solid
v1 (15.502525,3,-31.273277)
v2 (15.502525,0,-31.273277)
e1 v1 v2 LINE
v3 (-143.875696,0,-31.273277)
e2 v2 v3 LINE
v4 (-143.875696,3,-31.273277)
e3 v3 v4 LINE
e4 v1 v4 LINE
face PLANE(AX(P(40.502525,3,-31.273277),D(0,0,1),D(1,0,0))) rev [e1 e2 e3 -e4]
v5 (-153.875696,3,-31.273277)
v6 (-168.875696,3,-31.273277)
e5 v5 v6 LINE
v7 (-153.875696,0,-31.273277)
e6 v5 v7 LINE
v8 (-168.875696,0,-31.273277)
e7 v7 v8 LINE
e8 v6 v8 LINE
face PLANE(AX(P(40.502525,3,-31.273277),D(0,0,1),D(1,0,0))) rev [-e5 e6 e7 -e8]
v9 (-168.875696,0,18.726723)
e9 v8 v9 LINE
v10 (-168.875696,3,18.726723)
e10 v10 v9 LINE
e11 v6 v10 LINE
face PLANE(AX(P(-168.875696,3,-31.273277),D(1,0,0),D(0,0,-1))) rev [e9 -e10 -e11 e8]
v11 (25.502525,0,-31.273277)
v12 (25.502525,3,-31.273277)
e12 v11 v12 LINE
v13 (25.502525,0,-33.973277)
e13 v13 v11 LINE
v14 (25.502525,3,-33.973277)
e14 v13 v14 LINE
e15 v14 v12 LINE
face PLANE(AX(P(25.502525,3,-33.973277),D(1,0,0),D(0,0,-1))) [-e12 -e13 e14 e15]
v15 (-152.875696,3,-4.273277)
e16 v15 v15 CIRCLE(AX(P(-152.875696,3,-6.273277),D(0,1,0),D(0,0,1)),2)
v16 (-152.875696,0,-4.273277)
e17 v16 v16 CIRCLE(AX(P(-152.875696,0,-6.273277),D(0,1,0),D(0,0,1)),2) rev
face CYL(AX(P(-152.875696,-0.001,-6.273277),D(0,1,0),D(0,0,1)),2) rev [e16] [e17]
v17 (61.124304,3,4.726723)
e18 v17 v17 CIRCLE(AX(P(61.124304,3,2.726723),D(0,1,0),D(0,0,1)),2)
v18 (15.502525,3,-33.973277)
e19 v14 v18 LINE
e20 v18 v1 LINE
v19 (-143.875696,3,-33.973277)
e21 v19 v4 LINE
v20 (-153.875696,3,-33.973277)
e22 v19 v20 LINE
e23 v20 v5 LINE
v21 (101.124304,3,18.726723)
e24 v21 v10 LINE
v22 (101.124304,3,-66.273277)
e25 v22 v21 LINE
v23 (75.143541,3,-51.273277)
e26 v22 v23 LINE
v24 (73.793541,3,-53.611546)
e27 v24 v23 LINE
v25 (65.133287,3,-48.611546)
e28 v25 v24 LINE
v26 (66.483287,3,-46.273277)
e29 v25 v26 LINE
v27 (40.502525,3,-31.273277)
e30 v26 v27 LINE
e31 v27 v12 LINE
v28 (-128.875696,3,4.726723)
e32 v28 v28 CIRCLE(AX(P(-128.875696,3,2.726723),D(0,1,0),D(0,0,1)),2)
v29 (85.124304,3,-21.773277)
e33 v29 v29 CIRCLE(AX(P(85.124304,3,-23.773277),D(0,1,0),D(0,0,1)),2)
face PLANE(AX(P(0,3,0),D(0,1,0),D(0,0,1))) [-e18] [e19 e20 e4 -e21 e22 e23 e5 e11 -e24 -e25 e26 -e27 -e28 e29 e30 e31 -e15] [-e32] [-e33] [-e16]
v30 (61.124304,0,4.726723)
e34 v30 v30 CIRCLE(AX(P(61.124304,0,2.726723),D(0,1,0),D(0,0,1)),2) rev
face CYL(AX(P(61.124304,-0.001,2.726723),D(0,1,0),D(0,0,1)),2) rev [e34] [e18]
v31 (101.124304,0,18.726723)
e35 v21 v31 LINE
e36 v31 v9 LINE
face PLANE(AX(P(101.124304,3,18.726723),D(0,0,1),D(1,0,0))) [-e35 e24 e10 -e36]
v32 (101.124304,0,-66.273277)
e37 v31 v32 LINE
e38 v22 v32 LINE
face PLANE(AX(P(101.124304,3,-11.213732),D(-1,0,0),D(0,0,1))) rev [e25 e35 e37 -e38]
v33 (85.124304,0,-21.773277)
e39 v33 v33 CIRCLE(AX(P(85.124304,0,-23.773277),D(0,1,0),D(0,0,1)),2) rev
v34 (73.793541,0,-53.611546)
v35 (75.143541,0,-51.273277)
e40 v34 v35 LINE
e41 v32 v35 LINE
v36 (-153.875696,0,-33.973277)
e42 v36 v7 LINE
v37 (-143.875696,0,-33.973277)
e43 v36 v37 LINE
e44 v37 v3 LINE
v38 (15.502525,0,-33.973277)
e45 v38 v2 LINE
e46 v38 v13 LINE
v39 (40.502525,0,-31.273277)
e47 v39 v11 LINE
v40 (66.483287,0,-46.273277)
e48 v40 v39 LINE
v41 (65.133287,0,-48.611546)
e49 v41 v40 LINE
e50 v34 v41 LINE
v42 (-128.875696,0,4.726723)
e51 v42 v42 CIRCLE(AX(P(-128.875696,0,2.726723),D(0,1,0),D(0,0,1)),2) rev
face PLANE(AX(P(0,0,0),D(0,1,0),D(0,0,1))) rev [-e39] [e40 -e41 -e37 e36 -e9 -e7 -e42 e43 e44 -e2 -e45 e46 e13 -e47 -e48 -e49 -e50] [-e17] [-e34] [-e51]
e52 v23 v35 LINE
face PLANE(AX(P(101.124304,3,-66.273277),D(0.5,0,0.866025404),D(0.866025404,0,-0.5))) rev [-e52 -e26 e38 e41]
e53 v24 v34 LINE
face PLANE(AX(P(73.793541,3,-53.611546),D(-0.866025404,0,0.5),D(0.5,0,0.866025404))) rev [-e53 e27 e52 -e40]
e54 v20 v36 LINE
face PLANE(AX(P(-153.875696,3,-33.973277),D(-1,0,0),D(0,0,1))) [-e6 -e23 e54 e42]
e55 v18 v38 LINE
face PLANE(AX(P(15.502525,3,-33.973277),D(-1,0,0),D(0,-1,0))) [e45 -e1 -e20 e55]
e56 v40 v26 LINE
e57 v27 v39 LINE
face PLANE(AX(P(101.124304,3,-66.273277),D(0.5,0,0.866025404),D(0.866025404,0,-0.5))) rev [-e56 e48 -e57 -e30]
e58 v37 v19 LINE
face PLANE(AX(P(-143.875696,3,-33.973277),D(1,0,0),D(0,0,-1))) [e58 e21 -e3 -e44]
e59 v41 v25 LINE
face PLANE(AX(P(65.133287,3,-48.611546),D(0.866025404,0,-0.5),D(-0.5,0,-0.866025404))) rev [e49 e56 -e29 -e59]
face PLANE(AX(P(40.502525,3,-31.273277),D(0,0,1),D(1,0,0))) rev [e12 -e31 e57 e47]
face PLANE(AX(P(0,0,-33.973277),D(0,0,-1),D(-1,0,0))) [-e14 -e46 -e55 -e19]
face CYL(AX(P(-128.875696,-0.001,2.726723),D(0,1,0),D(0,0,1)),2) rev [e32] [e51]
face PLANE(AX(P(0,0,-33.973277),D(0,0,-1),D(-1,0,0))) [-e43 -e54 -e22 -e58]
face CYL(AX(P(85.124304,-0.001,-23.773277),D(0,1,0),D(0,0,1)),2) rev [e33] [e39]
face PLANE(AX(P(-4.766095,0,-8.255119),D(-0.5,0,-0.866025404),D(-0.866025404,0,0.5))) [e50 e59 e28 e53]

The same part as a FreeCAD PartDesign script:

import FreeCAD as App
import Part
import Sketcher
from FreeCAD import Vector
Q = App.Units.Quantity

doc = App.newDocument("Part")
params = doc.addObject("Spreadsheet::Sheet", "Params")
for row, (alias, value) in enumerate([
    ("sketch1_width", "270 mm"),
    ("sketch1_height", "50 mm"),
    ("sketch1_height2", "85 mm"),
    ("pad1_length", "3 mm"),
    ("sketch2_diameter", "4 mm"),
    ("sketch3_diameter", "4 mm"),
    ("sketch4_diameter", "4 mm"),
    ("sketch5_diameter", "4 mm"),
    ("sketch6_width", "10 mm"),
    ("sketch6_height", "3 mm"),
    ("pad2_length", "2.7 mm"),
    ("sketch7_width", "10 mm"),
    ("sketch7_height", "3 mm"),
    ("pad3_length", "2.7 mm"),
], start=1):
    params.set(f"A{row}", alias)
    params.set(f"B{row}", "=" + value)
    params.setAlias(f"B{row}", alias)

body = doc.addObject("PartDesign::Body", "Body")

# Sketch on XZ plane
sketch1 = doc.addObject("Sketcher::SketchObject", "Sketch")
body.addObject(sketch1)
sketch1.AttachmentSupport = (doc.XZ_Plane, [""])
sketch1.MapMode = "FlatFace"
sketch1.addGeometry([
    Part.LineSegment(Vector(101, -66, 0), Vector(41, -31, 0)),  # 0
    Part.LineSegment(Vector(41, -31, 0), Vector(-169, -31, 0)),  # 1
    Part.LineSegment(Vector(-169, -31, 0), Vector(-169, 19, 0)),  # 2
    Part.LineSegment(Vector(-169, 19, 0), Vector(101, 19, 0)),  # 3
    Part.LineSegment(Vector(101, 19, 0), Vector(101, -66, 0)),  # 4
], False)
sketch1.addConstraint([
    Sketcher.Constraint("Coincident", 0, 2, 1, 1),
    Sketcher.Constraint("Coincident", 1, 2, 2, 1),
    Sketcher.Constraint("Coincident", 2, 2, 3, 1),
    Sketcher.Constraint("Coincident", 3, 2, 4, 1),
    Sketcher.Constraint("Coincident", 4, 2, 0, 1),
    Sketcher.Constraint("Horizontal", 1),
    Sketcher.Constraint("Vertical", 2),
    Sketcher.Constraint("Horizontal", 3),
    Sketcher.Constraint("Vertical", 4),
    Sketcher.Constraint("DistanceX", 3, 1, 3, 2, Q("270 mm")),
    Sketcher.Constraint("DistanceY", 2, 1, 2, 2, Q("50 mm")),
    Sketcher.Constraint("DistanceY", 4, 2, 4, 1, Q("85 mm")),
    Sketcher.Constraint("Angle", 0, Q("150 deg")),
    Sketcher.Constraint("DistanceX", -1, 1, 0, 2, Q("40.502525 mm")),
    Sketcher.Constraint("DistanceY", 0, 2, -1, 1, Q("31.273277 mm")),
])
sketch1.setExpression("Constraints[9]", "Params.sketch1_width")
sketch1.setExpression("Constraints[10]", "Params.sketch1_height")
sketch1.setExpression("Constraints[11]", "Params.sketch1_height2")
pad1 = doc.addObject("PartDesign::Pad", "Pad")
body.addObject(pad1)
pad1.Profile = sketch1
pad1.setExpression("Length", "Params.pad1_length")
pad1.Reversed = True

# Sketch on XZ plane
sketch2 = doc.addObject("Sketcher::SketchObject", "Sketch001")
body.addObject(sketch2)
sketch2.AttachmentSupport = (doc.XZ_Plane, [""])
sketch2.MapMode = "FlatFace"
sketch2.AttachmentOffset = App.Placement(Vector(0, 0, -3), App.Rotation())
sketch2.addGeometry(Part.Circle(Vector(-152.9, -6.3, 0), Vector(0, 0, 1), 2), False)
sketch2.addConstraint([
    Sketcher.Constraint("Diameter", 0, Q("4 mm")),
    Sketcher.Constraint("DistanceX", 0, 3, -1, 1, Q("152.875696 mm")),
    Sketcher.Constraint("DistanceY", 0, 3, -1, 1, Q("6.273277 mm")),
])
sketch2.setExpression("Constraints[0]", "Params.sketch2_diameter")
pocket1 = doc.addObject("PartDesign::Pocket", "Pocket")
body.addObject(pocket1)
pocket1.Profile = sketch2
pocket1.Type = "UpToFirst"
pocket1.Reversed = True

# Sketch on XZ plane
sketch3 = doc.addObject("Sketcher::SketchObject", "Sketch002")
body.addObject(sketch3)
sketch3.AttachmentSupport = (doc.XZ_Plane, [""])
sketch3.MapMode = "FlatFace"
sketch3.AttachmentOffset = App.Placement(Vector(0, 0, -3), App.Rotation())
sketch3.addGeometry(Part.Circle(Vector(85.1, -23.8, 0), Vector(0, 0, 1), 2), False)
sketch3.addConstraint([
    Sketcher.Constraint("Diameter", 0, Q("4 mm")),
    Sketcher.Constraint("DistanceX", -1, 1, 0, 3, Q("85.124304 mm")),
    Sketcher.Constraint("DistanceY", 0, 3, -1, 1, Q("23.773277 mm")),
])
sketch3.setExpression("Constraints[0]", "Params.sketch3_diameter")
pocket2 = doc.addObject("PartDesign::Pocket", "Pocket001")
body.addObject(pocket2)
pocket2.Profile = sketch3
pocket2.Type = "UpToFirst"
pocket2.Reversed = True

# Sketch on XZ plane
sketch4 = doc.addObject("Sketcher::SketchObject", "Sketch003")
body.addObject(sketch4)
sketch4.AttachmentSupport = (doc.XZ_Plane, [""])
sketch4.MapMode = "FlatFace"
sketch4.AttachmentOffset = App.Placement(Vector(0, 0, -3), App.Rotation())
sketch4.addGeometry(Part.Circle(Vector(-128.9, 2.7, 0), Vector(0, 0, 1), 2), False)
sketch4.addConstraint([
    Sketcher.Constraint("Diameter", 0, Q("4 mm")),
    Sketcher.Constraint("DistanceX", 0, 3, -1, 1, Q("128.875696 mm")),
    Sketcher.Constraint("DistanceY", -1, 1, 0, 3, Q("2.726723 mm")),
])
sketch4.setExpression("Constraints[0]", "Params.sketch4_diameter")
pocket3 = doc.addObject("PartDesign::Pocket", "Pocket002")
body.addObject(pocket3)
pocket3.Profile = sketch4
pocket3.Type = "UpToFirst"
pocket3.Reversed = True

# Sketch on XZ plane
sketch5 = doc.addObject("Sketcher::SketchObject", "Sketch004")
body.addObject(sketch5)
sketch5.AttachmentSupport = (doc.XZ_Plane, [""])
sketch5.MapMode = "FlatFace"
sketch5.AttachmentOffset = App.Placement(Vector(0, 0, -3), App.Rotation())
sketch5.addGeometry(Part.Circle(Vector(61.1, 2.7, 0), Vector(0, 0, 1), 2), False)
sketch5.addConstraint([
    Sketcher.Constraint("Diameter", 0, Q("4 mm")),
    Sketcher.Constraint("DistanceX", -1, 1, 0, 3, Q("61.124304 mm")),
    Sketcher.Constraint("DistanceY", -1, 1, 0, 3, Q("2.726723 mm")),
])
sketch5.setExpression("Constraints[0]", "Params.sketch5_diameter")
pocket4 = doc.addObject("PartDesign::Pocket", "Pocket003")
body.addObject(pocket4)
pocket4.Profile = sketch5
pocket4.Type = "UpToFirst"
pocket4.Reversed = True

# Sketch on XY plane
sketch6 = doc.addObject("Sketcher::SketchObject", "Sketch005")
body.addObject(sketch6)
sketch6.AttachmentSupport = (doc.XY_Plane, [""])
sketch6.MapMode = "FlatFace"
sketch6.AttachmentOffset = App.Placement(Vector(0, 0, -31.273277), App.Rotation())
sketch6.addGeometry([
    Part.LineSegment(Vector(-153.9, 3, 0), Vector(-153.9, 0, 0)),  # 0
    Part.LineSegment(Vector(-153.9, 0, 0), Vector(-143.9, 0, 0)),  # 1
    Part.LineSegment(Vector(-143.9, 0, 0), Vector(-143.9, 3, 0)),  # 2
    Part.LineSegment(Vector(-143.9, 3, 0), Vector(-153.9, 3, 0)),  # 3
    Part.LineSegment(Vector(15.5, 3, 0), Vector(15.5, 0, 0)),  # 4
    Part.LineSegment(Vector(15.5, 0, 0), Vector(25.5, 0, 0)),  # 5
    Part.LineSegment(Vector(25.5, 0, 0), Vector(25.5, 3, 0)),  # 6
    Part.LineSegment(Vector(25.5, 3, 0), Vector(15.5, 3, 0)),  # 7
], False)
sketch6.addConstraint([
    Sketcher.Constraint("Coincident", 0, 2, 1, 1),
    Sketcher.Constraint("Coincident", 1, 2, 2, 1),
    Sketcher.Constraint("Coincident", 2, 2, 3, 1),
    Sketcher.Constraint("Coincident", 3, 2, 0, 1),
    Sketcher.Constraint("Coincident", 4, 2, 5, 1),
    Sketcher.Constraint("Coincident", 5, 2, 6, 1),
    Sketcher.Constraint("Coincident", 6, 2, 7, 1),
    Sketcher.Constraint("Coincident", 7, 2, 4, 1),
    Sketcher.Constraint("Vertical", 0),
    Sketcher.Constraint("Horizontal", 1),
    Sketcher.Constraint("Vertical", 2),
    Sketcher.Constraint("Horizontal", 3),
    Sketcher.Constraint("Vertical", 4),
    Sketcher.Constraint("Horizontal", 5),
    Sketcher.Constraint("Vertical", 6),
    Sketcher.Constraint("Horizontal", 7),
    Sketcher.Constraint("PointOnObject", 0, 2, -1),
    Sketcher.Constraint("PointOnObject", 4, 2, -1),
    Sketcher.Constraint("Horizontal", 3, 2, 6, 2),
    Sketcher.Constraint("Equal", 3, 5),
    Sketcher.Constraint("DistanceX", 1, 1, 1, 2, Q("10 mm")),
    Sketcher.Constraint("DistanceY", 0, 2, 0, 1, Q("3 mm")),
    Sketcher.Constraint("DistanceX", 1, 2, 4, 2, Q("159.378222 mm")),
    Sketcher.Constraint("DistanceX", 0, 2, -1, 1, Q("153.875696 mm")),
])
sketch6.setExpression("Constraints[20]", "Params.sketch6_width")
sketch6.setExpression("Constraints[21]", "Params.sketch6_height")
pad2 = doc.addObject("PartDesign::Pad", "Pad001")
body.addObject(pad2)
pad2.Profile = sketch6
pad2.setExpression("Length", "Params.pad2_length")
pad2.Reversed = True

# Sketch on an angled plane
sketch7 = doc.addObject("Sketcher::SketchObject", "Sketch006")
body.addObject(sketch7)
sketch7.Placement = App.Placement(Vector(-3.416095, 0, -5.91685), App.Rotation(Vector(-0.866025404, 0, 0.5), Vector(0, 1, 0), Vector(-0.5, 0, -0.866025404), "ZXY"))
sketch7.addGeometry([
    Part.LineSegment(Vector(-90.7, 3, 0), Vector(-90.7, 0, 0)),
    Part.LineSegment(Vector(-90.7, 0, 0), Vector(-80.7, 0, 0)),
    Part.LineSegment(Vector(-80.7, 0, 0), Vector(-80.7, 3, 0)),
    Part.LineSegment(Vector(-80.7, 3, 0), Vector(-90.7, 3, 0)),
], False)
sketch7.addConstraint([
    Sketcher.Constraint("Coincident", 0, 2, 1, 1),
    Sketcher.Constraint("Coincident", 1, 2, 2, 1),
    Sketcher.Constraint("Coincident", 2, 2, 3, 1),
    Sketcher.Constraint("Coincident", 3, 2, 0, 1),
    Sketcher.Constraint("Vertical", 0),
    Sketcher.Constraint("Horizontal", 1),
    Sketcher.Constraint("Vertical", 2),
    Sketcher.Constraint("Horizontal", 3),
    Sketcher.Constraint("PointOnObject", 0, 2, -1),
    Sketcher.Constraint("DistanceX", 1, 1, 1, 2, Q("10 mm")),
    Sketcher.Constraint("DistanceY", 0, 2, 0, 1, Q("3 mm")),
    Sketcher.Constraint("DistanceX", 0, 2, -1, 1, Q("90.712854 mm")),
])
sketch7.setExpression("Constraints[9]", "Params.sketch7_width")
sketch7.setExpression("Constraints[10]", "Params.sketch7_height")
pad3 = doc.addObject("PartDesign::Pad", "Pad002")
body.addObject(pad3)
pad3.Profile = sketch7
pad3.setExpression("Length", "Params.pad3_length")

doc.recompute()
